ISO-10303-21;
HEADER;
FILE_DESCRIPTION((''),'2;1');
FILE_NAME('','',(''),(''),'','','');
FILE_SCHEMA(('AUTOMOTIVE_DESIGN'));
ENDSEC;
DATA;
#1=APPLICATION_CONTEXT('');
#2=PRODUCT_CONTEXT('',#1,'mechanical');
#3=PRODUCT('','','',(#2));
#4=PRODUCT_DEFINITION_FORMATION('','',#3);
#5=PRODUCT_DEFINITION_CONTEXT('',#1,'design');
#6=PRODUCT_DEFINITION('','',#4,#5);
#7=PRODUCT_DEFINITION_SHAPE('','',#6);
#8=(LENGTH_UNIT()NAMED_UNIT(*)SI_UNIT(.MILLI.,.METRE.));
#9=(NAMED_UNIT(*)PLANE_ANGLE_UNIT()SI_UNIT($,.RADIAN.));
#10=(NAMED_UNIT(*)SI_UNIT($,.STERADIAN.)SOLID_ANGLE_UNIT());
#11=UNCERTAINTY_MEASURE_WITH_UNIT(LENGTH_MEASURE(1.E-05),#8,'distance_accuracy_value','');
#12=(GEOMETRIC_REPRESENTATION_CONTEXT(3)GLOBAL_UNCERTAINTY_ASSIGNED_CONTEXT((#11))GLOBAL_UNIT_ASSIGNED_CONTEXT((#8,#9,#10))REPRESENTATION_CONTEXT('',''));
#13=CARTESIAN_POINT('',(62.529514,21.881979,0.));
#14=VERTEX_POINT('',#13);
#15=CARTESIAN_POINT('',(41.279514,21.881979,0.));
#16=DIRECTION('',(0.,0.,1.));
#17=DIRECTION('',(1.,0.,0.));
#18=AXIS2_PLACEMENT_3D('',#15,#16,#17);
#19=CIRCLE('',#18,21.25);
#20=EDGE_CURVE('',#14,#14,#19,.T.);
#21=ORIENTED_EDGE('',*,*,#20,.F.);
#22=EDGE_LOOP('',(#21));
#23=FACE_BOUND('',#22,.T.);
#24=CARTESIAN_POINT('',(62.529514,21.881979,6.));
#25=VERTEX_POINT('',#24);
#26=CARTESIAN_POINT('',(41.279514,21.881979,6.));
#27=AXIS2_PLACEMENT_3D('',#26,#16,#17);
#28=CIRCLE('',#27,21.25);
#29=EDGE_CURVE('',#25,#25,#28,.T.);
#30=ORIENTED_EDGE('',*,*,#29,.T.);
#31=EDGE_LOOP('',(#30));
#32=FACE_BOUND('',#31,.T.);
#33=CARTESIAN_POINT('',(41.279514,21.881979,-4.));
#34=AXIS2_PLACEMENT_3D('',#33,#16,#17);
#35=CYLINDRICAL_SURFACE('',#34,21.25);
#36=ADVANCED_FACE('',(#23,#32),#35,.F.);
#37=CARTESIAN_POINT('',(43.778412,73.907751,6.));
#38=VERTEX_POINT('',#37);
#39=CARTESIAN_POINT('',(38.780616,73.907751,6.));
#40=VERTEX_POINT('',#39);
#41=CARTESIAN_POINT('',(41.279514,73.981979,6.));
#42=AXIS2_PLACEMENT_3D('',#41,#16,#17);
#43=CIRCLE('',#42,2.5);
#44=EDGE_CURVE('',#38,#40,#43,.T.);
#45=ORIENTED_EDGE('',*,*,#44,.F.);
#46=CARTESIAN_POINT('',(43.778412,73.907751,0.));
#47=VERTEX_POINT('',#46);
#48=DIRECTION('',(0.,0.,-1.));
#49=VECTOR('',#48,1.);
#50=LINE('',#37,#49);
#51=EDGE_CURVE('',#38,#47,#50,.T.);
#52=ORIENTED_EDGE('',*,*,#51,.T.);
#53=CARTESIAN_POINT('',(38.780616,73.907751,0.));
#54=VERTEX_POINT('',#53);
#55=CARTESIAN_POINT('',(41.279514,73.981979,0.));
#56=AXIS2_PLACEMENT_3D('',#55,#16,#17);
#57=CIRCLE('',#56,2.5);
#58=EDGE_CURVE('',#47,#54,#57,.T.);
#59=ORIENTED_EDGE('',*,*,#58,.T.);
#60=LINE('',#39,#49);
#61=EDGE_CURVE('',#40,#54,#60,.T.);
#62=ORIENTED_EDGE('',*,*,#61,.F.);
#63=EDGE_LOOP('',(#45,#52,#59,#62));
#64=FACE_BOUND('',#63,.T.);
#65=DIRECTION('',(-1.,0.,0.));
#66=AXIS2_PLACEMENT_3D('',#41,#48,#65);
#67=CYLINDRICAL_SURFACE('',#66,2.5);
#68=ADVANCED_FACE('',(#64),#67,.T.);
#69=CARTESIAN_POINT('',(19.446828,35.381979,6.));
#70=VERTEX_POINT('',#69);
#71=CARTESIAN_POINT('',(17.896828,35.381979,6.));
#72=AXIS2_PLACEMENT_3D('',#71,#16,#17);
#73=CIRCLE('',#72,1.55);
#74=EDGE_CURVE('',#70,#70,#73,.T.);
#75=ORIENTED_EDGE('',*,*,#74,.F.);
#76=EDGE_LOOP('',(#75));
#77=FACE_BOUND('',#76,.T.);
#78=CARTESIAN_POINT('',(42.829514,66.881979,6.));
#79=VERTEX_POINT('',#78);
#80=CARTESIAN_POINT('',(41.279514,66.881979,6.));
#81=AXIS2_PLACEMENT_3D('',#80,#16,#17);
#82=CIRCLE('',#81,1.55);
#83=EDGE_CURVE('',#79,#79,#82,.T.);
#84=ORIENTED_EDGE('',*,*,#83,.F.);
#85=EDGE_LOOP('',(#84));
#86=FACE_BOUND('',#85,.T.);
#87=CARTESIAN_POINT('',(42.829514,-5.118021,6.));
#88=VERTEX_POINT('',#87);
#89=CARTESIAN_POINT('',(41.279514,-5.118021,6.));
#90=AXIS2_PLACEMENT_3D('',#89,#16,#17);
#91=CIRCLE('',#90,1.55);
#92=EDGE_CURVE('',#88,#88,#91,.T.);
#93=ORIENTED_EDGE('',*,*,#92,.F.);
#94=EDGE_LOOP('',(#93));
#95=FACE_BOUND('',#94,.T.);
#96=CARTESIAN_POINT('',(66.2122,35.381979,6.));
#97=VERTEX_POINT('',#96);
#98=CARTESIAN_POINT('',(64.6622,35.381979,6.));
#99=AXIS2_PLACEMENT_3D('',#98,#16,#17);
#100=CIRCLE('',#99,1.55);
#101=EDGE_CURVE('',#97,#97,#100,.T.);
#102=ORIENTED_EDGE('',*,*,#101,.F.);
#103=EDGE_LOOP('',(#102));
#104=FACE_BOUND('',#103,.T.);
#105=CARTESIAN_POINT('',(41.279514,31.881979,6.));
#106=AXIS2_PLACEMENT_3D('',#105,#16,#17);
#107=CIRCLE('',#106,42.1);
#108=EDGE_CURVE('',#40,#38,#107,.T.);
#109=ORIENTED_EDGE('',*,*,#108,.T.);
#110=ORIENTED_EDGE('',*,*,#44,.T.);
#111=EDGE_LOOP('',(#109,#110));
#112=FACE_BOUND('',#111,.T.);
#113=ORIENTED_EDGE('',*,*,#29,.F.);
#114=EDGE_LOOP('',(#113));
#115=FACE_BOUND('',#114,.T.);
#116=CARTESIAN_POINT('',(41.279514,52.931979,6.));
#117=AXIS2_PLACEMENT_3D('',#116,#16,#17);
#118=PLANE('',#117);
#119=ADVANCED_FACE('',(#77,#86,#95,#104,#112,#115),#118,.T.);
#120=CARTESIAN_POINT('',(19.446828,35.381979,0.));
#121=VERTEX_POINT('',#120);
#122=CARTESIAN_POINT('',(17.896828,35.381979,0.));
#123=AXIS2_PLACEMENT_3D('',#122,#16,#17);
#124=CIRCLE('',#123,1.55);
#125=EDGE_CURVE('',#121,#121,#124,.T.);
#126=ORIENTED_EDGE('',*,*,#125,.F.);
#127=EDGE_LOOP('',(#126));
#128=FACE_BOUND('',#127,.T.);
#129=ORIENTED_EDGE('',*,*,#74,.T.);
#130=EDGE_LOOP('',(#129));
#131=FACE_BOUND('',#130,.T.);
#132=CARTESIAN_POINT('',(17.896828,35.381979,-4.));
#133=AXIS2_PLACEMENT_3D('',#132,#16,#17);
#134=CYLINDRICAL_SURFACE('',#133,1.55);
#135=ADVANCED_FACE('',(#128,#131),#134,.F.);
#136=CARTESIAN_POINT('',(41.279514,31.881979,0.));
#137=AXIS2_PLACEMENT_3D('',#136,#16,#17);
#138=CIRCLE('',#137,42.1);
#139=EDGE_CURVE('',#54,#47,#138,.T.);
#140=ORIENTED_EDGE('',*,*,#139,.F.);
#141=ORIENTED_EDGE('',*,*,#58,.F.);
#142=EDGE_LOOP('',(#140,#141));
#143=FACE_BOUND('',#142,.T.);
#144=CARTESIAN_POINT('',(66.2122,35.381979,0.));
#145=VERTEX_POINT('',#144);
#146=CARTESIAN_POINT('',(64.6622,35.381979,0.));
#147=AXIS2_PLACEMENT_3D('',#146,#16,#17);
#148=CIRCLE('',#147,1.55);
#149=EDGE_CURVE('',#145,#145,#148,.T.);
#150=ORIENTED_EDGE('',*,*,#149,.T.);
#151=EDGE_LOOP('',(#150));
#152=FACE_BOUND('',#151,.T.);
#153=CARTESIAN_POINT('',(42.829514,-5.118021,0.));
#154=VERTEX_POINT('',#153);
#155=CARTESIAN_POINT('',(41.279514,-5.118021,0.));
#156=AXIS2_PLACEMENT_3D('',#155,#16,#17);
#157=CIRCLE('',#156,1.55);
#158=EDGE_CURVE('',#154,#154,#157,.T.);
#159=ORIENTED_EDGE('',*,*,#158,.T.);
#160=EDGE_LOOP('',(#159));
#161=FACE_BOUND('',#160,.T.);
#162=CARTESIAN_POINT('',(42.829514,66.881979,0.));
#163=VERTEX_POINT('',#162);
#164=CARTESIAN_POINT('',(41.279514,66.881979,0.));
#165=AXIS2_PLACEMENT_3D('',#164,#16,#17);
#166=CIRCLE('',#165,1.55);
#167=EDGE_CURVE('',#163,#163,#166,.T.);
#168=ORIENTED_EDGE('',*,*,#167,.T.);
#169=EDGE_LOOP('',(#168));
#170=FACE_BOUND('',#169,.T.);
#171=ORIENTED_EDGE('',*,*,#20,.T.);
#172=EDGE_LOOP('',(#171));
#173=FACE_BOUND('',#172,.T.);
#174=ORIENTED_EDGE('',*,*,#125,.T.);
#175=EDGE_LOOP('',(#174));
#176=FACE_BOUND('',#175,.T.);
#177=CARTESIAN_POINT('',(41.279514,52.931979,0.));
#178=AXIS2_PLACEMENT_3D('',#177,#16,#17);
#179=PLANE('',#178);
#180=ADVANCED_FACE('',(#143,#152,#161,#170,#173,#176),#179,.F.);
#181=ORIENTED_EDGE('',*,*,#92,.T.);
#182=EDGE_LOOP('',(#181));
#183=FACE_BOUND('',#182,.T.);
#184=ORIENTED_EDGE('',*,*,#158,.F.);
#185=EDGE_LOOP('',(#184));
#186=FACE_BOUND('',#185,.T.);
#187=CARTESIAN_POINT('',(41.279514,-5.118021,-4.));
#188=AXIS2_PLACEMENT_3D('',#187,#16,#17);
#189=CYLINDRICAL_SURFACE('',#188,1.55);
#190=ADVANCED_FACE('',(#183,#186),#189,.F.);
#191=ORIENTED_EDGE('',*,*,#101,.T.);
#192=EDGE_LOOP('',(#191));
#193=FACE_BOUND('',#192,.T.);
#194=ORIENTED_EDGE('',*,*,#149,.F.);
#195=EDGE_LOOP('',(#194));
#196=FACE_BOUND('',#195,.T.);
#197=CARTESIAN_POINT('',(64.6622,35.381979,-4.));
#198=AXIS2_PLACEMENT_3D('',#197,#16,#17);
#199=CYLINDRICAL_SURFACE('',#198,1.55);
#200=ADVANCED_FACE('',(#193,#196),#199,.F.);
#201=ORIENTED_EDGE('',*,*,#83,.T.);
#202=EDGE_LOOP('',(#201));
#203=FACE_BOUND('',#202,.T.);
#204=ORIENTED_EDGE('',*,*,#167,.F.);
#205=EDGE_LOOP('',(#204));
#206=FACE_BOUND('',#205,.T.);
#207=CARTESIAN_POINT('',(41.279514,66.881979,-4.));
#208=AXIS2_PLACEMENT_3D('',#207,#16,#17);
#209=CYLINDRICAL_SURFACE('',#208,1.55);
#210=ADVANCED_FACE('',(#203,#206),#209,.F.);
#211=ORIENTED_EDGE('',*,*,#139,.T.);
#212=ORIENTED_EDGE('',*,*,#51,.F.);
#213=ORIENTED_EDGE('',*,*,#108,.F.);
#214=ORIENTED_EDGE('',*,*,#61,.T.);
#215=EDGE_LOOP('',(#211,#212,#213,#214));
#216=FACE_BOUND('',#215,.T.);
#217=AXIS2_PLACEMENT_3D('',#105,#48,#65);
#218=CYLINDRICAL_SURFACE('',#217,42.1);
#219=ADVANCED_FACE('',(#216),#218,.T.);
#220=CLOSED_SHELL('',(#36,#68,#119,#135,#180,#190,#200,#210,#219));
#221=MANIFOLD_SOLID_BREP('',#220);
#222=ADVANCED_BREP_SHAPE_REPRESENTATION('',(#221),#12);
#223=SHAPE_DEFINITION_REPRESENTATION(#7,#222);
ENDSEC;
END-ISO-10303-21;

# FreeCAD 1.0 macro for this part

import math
import FreeCAD as App
import Part
import Sketcher

V = App.Vector

doc = App.newDocument("Part")
body = doc.addObject("PartDesign::Body", "Body")

# Sketch on XY plane
sketch1 = body.newObject("Sketcher::SketchObject", "Sketch")
sketch1.AttachmentSupport = (doc.getObject("XY_Plane"), [""])
sketch1.MapMode = "FlatFace"
sketch1.addGeometry([
    Part.ArcOfCircle(Part.Circle(V(41.3, 31.9, 0), V(0, 0, 1), 42.1), math.radians(93), math.radians(447)),
    Part.ArcOfCircle(Part.Circle(V(41.3, 74, 0), V(0, 0, 1), 2.5), math.radians(-2), math.radians(182)),
], False)
sketch1.addConstraint([
    Sketcher.Constraint("Coincident", 0, 1, 1, 2),
    Sketcher.Constraint("Coincident", 1, 1, 0, 2),
    Sketcher.Constraint("Horizontal", 0, 1, 1, 1),
    Sketcher.Constraint("Radius", 0, 42.1),
    Sketcher.Constraint("Radius", 1, 2.5),
    Sketcher.Constraint("DistanceY", 0, 3, 1, 3, 42.1),
    Sketcher.Constraint("DistanceY", -1, 1, 0, 3, 31.881979),
    Sketcher.Constraint("DistanceX", -1, 1, 1, 1, 43.778412),
])
pad1 = body.newObject("PartDesign::Pad", "Pad")
pad1.Profile = sketch1
pad1.Length = 6

# Sketch on XY plane
sketch2 = body.newObject("Sketcher::SketchObject", "Sketch001")
sketch2.AttachmentSupport = (doc.getObject("XY_Plane"), [""])
sketch2.MapMode = "FlatFace"
sketch2.AttachmentOffset = App.Placement(V(0, 0, 6), App.Rotation())
sketch2.addGeometry(Part.Circle(V(41, 22, 0), V(0, 0, 1), 21), False)
sketch2.addConstraint([
    Sketcher.Constraint("Diameter", 0, 42.5),
    Sketcher.Constraint("DistanceY", -1, 1, 0, 3, 21.881979),
    Sketcher.Constraint("DistanceX", -1, 1, 0, 3, 41.279514),
])
pocket1 = body.newObject("PartDesign::Pocket", "Pocket")
pocket1.Profile = sketch2
pocket1.Length = 10

# Sketch on XY plane
sketch3 = body.newObject("Sketcher::SketchObject", "Sketch002")
sketch3.AttachmentSupport = (doc.getObject("XY_Plane"), [""])
sketch3.MapMode = "FlatFace"
sketch3.AttachmentOffset = App.Placement(V(0, 0, 6), App.Rotation())
sketch3.addGeometry([
    Part.Circle(V(41.3, -5.1, 0), V(0, 0, 1), 1.6),
    Part.Circle(V(17.9, 35.4, 0), V(0, 0, 1), 1.6),
    Part.Circle(V(64.7, 35.4, 0), V(0, 0, 1), 1.6),
    Part.Circle(V(41.3, 66.9, 0), V(0, 0, 1), 1.6),
], False)
sketch3.addConstraint([
    Sketcher.Constraint("Equal", 0, 1),
    Sketcher.Constraint("Equal", 1, 2),
    Sketcher.Constraint("Equal", 2, 3),
    Sketcher.Constraint("Horizontal", 1, 3, 2, 3),
    Sketcher.Constraint("Vertical", 0, 3, 3, 3),
    Sketcher.Constraint("Diameter", 0, 3.1),
    Sketcher.Constraint("DistanceY", 0, 3, 3, 3, 72.0),
    Sketcher.Constraint("DistanceY", 0, 3, 1, 3, 40.5),
    Sketcher.Constraint("DistanceX", -1, 1, 2, 3, 64.6622),
    Sketcher.Constraint("DistanceY", 0, 3, -1, 1, 5.118021),
    Sketcher.Constraint("DistanceX", 1, 3, 2, 3, 46.765372),
    Sketcher.Constraint("DistanceX", -1, 1, 0, 3, 41.279514),
])
pocket2 = body.newObject("PartDesign::Pocket", "Pocket001")
pocket2.Profile = sketch3
pocket2.Length = 10

doc.recompute()
